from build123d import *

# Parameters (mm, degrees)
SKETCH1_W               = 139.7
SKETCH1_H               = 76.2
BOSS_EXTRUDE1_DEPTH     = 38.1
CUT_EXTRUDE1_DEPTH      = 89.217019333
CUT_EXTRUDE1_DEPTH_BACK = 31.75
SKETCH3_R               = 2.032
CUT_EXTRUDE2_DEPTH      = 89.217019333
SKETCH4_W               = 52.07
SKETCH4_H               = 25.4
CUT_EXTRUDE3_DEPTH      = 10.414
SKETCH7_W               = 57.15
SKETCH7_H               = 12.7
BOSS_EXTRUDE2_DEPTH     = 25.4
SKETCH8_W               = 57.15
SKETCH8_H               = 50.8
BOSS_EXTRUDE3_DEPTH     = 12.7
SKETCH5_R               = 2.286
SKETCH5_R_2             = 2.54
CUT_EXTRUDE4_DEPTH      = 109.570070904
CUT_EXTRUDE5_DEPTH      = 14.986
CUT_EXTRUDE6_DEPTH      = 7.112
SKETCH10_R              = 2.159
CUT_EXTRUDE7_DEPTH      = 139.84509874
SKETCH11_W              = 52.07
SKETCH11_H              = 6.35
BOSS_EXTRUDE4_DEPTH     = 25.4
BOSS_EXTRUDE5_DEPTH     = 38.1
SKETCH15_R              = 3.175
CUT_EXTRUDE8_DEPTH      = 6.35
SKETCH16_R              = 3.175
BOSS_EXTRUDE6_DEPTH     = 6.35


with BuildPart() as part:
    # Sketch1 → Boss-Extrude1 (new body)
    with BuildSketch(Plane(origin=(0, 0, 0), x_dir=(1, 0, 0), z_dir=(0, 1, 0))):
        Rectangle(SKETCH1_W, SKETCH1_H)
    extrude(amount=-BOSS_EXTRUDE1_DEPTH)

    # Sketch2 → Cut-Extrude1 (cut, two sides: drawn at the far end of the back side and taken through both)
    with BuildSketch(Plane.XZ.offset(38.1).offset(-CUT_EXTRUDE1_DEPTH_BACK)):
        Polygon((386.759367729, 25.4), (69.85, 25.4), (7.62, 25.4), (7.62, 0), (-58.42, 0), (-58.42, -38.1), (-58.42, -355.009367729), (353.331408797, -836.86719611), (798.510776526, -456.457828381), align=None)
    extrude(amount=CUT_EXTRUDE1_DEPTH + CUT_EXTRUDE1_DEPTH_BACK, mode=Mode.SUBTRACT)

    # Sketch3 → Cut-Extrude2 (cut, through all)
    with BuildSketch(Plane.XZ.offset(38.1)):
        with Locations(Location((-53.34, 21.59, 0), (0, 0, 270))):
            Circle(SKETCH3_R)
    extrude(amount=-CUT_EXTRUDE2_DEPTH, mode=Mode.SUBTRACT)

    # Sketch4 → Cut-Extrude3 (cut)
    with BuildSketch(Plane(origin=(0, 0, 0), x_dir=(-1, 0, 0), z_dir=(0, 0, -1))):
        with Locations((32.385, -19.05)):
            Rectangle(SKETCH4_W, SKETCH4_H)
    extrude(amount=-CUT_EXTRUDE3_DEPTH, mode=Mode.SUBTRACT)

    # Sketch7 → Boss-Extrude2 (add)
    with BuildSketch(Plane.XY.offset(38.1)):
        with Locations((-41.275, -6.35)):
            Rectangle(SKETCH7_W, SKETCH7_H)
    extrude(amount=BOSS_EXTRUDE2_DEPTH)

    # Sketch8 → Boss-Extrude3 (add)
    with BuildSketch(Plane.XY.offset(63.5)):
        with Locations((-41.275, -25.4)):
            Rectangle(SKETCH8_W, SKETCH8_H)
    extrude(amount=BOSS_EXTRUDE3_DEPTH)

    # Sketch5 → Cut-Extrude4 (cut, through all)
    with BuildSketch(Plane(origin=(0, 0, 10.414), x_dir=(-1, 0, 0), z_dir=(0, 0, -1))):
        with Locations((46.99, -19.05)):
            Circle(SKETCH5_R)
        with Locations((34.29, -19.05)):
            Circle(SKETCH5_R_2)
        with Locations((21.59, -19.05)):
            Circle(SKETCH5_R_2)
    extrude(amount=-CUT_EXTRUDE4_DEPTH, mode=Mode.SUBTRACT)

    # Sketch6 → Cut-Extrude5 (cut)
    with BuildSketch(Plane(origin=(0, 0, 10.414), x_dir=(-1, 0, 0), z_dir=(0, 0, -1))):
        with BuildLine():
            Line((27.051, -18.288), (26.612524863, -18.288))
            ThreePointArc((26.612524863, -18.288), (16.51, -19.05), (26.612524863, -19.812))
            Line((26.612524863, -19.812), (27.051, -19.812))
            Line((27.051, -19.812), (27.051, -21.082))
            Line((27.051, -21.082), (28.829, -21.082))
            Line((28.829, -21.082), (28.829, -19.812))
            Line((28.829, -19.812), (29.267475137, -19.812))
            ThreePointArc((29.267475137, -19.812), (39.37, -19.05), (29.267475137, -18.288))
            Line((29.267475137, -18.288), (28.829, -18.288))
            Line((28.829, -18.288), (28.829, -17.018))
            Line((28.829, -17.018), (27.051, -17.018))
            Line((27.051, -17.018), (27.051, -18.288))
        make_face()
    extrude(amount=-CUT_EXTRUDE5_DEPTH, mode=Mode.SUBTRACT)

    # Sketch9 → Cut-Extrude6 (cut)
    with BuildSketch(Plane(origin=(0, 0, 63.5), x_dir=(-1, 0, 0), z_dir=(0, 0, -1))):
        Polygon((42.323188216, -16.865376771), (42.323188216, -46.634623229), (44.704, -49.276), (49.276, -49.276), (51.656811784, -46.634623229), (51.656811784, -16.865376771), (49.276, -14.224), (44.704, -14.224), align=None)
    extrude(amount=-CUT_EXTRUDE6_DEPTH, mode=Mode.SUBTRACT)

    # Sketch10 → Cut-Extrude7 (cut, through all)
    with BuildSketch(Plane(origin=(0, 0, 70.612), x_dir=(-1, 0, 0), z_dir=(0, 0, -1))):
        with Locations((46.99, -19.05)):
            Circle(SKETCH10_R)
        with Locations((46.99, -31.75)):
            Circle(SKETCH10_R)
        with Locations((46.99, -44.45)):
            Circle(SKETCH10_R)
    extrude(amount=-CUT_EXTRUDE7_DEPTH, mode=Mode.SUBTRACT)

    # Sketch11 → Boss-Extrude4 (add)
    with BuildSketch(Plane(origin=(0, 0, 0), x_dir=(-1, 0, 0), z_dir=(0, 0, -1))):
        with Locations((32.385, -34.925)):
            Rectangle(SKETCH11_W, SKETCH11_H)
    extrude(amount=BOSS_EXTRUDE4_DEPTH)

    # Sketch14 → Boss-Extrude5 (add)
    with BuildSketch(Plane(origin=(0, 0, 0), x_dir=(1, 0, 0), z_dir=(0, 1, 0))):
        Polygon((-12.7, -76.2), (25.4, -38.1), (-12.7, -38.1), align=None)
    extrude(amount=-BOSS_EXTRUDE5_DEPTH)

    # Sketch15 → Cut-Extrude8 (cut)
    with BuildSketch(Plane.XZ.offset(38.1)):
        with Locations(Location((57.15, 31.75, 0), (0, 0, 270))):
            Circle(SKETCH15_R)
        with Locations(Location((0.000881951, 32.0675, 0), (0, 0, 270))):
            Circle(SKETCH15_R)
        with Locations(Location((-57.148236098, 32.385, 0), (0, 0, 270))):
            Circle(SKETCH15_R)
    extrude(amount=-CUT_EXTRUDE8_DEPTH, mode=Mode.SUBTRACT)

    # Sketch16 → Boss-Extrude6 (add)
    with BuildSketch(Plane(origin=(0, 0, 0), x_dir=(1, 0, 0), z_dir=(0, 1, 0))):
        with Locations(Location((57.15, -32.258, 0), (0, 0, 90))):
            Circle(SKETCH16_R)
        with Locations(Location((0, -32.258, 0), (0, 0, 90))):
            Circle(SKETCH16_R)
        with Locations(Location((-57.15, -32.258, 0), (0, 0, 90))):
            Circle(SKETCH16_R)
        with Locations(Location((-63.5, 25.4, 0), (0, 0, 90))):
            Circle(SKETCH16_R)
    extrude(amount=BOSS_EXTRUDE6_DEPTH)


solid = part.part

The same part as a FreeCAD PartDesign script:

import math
import FreeCAD as App
import Part
import Sketcher
from FreeCAD import Vector
Q = App.Units.Quantity


def add_polygon(sketch, points):
    """Adds a closed chain of lines whose ends are joined by coincident constraints."""
    first, n = sketch.GeometryCount, len(points)
    for a, b in zip(points, points[1:] + points[:1]):
        sketch.addGeometry(Part.LineSegment(App.Vector(*a, 0), App.Vector(*b, 0)), False)
    for i in range(n):
        sketch.addConstraint(Sketcher.Constraint("Coincident", first + i, 2, first + (i + 1) % n, 1))

doc = App.newDocument("Part")
body = doc.addObject("PartDesign::Body", "Body")

# Sketch on XZ plane
sketch1 = body.newObject("Sketcher::SketchObject", "Sketch")
sketch1.AttachmentSupport = (doc.getObject("XZ_Plane"), [""])
sketch1.MapMode = "FlatFace"
add_polygon(sketch1, [(-70, -38), (-70, 38), (70, 38), (70, -38)])  # lines 0-3
sketch1.addConstraint(Sketcher.Constraint("Vertical", 0))
sketch1.addConstraint(Sketcher.Constraint("Horizontal", 1))
sketch1.addConstraint(Sketcher.Constraint("Vertical", 2))
sketch1.addConstraint(Sketcher.Constraint("Horizontal", 3))
sketch1.addConstraint(Sketcher.Constraint("Symmetric", 0, 2, 2, 2, -1, 1))
sketch1.addConstraint(Sketcher.Constraint("DistanceY", 0, 1, 0, 2, Q("3 in")))
sketch1.addConstraint(Sketcher.Constraint("DistanceX", 1, 1, 1, 2, Q("5.5 in")))
pad1 = body.newObject("PartDesign::Pad", "Pad")
pad1.Profile = sketch1
pad1.Length = Q("1.5 in")

# Sketch on XZ plane
sketch2 = body.newObject("Sketcher::SketchObject", "Sketch001")
sketch2.AttachmentSupport = (doc.getObject("XZ_Plane"), [""])
sketch2.MapMode = "FlatFace"
sketch2.AttachmentOffset = App.Placement(Vector(0, 0, 1.5 * 25.4), App.Rotation())
add_polygon(sketch2, [(387, 25), (8, 25), (8, 0), (-58, 0), (-58, -355), (353, -837), (799, -456)])  # lines 0-6
sketch2.addConstraint(Sketcher.Constraint("Horizontal", 0))
sketch2.addConstraint(Sketcher.Constraint("Vertical", 1))
sketch2.addConstraint(Sketcher.Constraint("Horizontal", 2))
sketch2.addConstraint(Sketcher.Constraint("Vertical", 3))
sketch2.addConstraint(Sketcher.Constraint("PointOnObject", 1, 2, -1))
sketch2.addConstraint(Sketcher.Constraint("Perpendicular", 4, 5))
sketch2.addConstraint(Sketcher.Constraint("Perpendicular", 5, 6))
sketch2.addConstraint(Sketcher.Constraint("Equal", 4, 6))
sketch2.addConstraint(Sketcher.Constraint("DistanceY", 1, 2, 1, 1, Q("1 in")))
sketch2.addConstraint(Sketcher.Constraint("DistanceX", 2, 2, 2, 1, Q("2.6 in")))
sketch2.addConstraint(Sketcher.Constraint("DistanceX", -1, 1, 0, 2, Q("0.3 in")))
sketch2.addConstraint(Sketcher.Constraint("DistanceX", 0, 2, 0, 1, 379.139368))
sketch2.addConstraint(Sketcher.Constraint("DistanceY", 3, 2, 3, 1, 355.009368))
sketch2.addConstraint(Sketcher.Constraint("DistanceX", -1, 1, 4, 2, 353.331409))
pocket1 = body.newObject("PartDesign::Pocket", "Pocket")
pocket1.Profile = sketch2
pocket1.Type = "TwoLengths"
pocket1.Length = 89.217019
pocket1.Length2 = Q("1.25 in")
pocket1.Reversed = True

# Sketch on XZ plane
sketch3 = body.newObject("Sketcher::SketchObject", "Sketch002")
sketch3.AttachmentSupport = (doc.getObject("XZ_Plane"), [""])
sketch3.MapMode = "FlatFace"
sketch3.AttachmentOffset = App.Placement(Vector(0, 0, 1.5 * 25.4), App.Rotation())
sketch3.addGeometry(Part.Circle(Vector(-53.3, 21.6, 0), Vector(0, 0, 1), 2), False)
sketch3.addConstraint(Sketcher.Constraint("Diameter", 0, Q("0.16 in")))
sketch3.addConstraint(Sketcher.Constraint("DistanceX", 0, 3, -1, 1, Q("2.1 in")))
sketch3.addConstraint(Sketcher.Constraint("DistanceY", -1, 1, 0, 3, Q("0.85 in")))
pocket2 = body.newObject("PartDesign::Pocket", "Pocket001")
pocket2.Profile = sketch3
pocket2.Type = "ThroughAll"

# Sketch on XY plane
sketch4 = body.newObject("Sketcher::SketchObject", "Sketch003")
sketch4.AttachmentSupport = (doc.getObject("XY_Plane"), [""])
sketch4.MapMode = "FlatFace"
add_polygon(sketch4, [(-6, -6), (-6, -32), (-58, -32), (-58, -6)])  # lines 0-3
sketch4.addConstraint(Sketcher.Constraint("Vertical", 0))
sketch4.addConstraint(Sketcher.Constraint("Horizontal", 1))
sketch4.addConstraint(Sketcher.Constraint("Vertical", 2))
sketch4.addConstraint(Sketcher.Constraint("Horizontal", 3))
sketch4.addConstraint(Sketcher.Constraint("DistanceY", 0, 2, 0, 1, Q("1 in")))
sketch4.addConstraint(Sketcher.Constraint("DistanceX", 1, 2, 1, 1, Q("2.05 in")))
sketch4.addConstraint(Sketcher.Constraint("DistanceX", 1, 2, -1, 1, Q("2.3 in")))
sketch4.addConstraint(Sketcher.Constraint("DistanceY", 0, 2, -1, 1, Q("1.25 in")))
pocket3 = body.newObject("PartDesign::Pocket", "Pocket002")
pocket3.Profile = sketch4
pocket3.Length = Q("0.41 in")
pocket3.Reversed = True

# Sketch on XY plane
sketch5 = body.newObject("Sketcher::SketchObject", "Sketch004")
sketch5.AttachmentSupport = (doc.getObject("XY_Plane"), [""])
sketch5.MapMode = "FlatFace"
sketch5.AttachmentOffset = App.Placement(Vector(0, 0, 1.5 * 25.4), App.Rotation())
add_polygon(sketch5, [(-70, 0), (-70, -13), (-13, -13), (-13, 0)])  # lines 0-3
sketch5.addConstraint(Sketcher.Constraint("Vertical", 0))
sketch5.addConstraint(Sketcher.Constraint("Horizontal", 1))
sketch5.addConstraint(Sketcher.Constraint("Vertical", 2))
sketch5.addConstraint(Sketcher.Constraint("Horizontal", 3))
sketch5.addConstraint(Sketcher.Constraint("PointOnObject", 2, 2, -1))
sketch5.addConstraint(Sketcher.Constraint("DistanceY", 0, 2, 0, 1, Q("0.5 in")))
sketch5.addConstraint(Sketcher.Constraint("DistanceX", 1, 1, 1, 2, Q("2.25 in")))
sketch5.addConstraint(Sketcher.Constraint("DistanceX", 1, 2, -1, 1, Q("0.5 in")))
pad2 = body.newObject("PartDesign::Pad", "Pad001")
pad2.Profile = sketch5
pad2.Length = Q("1 in")

# Sketch on XY plane
sketch6 = body.newObject("Sketcher::SketchObject", "Sketch005")
sketch6.AttachmentSupport = (doc.getObject("XY_Plane"), [""])
sketch6.MapMode = "FlatFace"
sketch6.AttachmentOffset = App.Placement(Vector(0, 0, 2.5 * 25.4), App.Rotation())
add_polygon(sketch6, [(-70, 0), (-70, -51), (-13, -51), (-13, 0)])  # lines 0-3
sketch6.addConstraint(Sketcher.Constraint("Vertical", 0))
sketch6.addConstraint(Sketcher.Constraint("Horizontal", 1))
sketch6.addConstraint(Sketcher.Constraint("Vertical", 2))
sketch6.addConstraint(Sketcher.Constraint("Horizontal", 3))
sketch6.addConstraint(Sketcher.Constraint("PointOnObject", 2, 2, -1))
sketch6.addConstraint(Sketcher.Constraint("DistanceY", 0, 2, 0, 1, Q("2 in")))
sketch6.addConstraint(Sketcher.Constraint("DistanceX", 1, 1, 1, 2, Q("2.25 in")))
sketch6.addConstraint(Sketcher.Constraint("DistanceX", 1, 2, -1, 1, Q("0.5 in")))
pad3 = body.newObject("PartDesign::Pad", "Pad002")
pad3.Profile = sketch6
pad3.Length = Q("0.5 in")

# Sketch on XY plane
sketch7 = body.newObject("Sketcher::SketchObject", "Sketch006")
sketch7.AttachmentSupport = (doc.getObject("XY_Plane"), [""])
sketch7.MapMode = "FlatFace"
sketch7.AttachmentOffset = App.Placement(Vector(0, 0, 0.41 * 25.4), App.Rotation())
sketch7.addGeometry(Part.Circle(Vector(-47, -19.1, 0), Vector(0, 0, 1), 2.3), False)
sketch7.addGeometry(Part.Circle(Vector(-34.3, -19.1, 0), Vector(0, 0, 1), 2.5), False)
sketch7.addGeometry(Part.Circle(Vector(-21.6, -19.1, 0), Vector(0, 0, 1), 2.5), False)
sketch7.addConstraint(Sketcher.Constraint("Equal", 1, 2))
sketch7.addConstraint(Sketcher.Constraint("Horizontal", 0, 3, 1, 3))
sketch7.addConstraint(Sketcher.Constraint("Horizontal", 1, 3, 2, 3))
sketch7.addConstraint(Sketcher.Constraint("Diameter", 1, Q("0.2 in")))
sketch7.addConstraint(Sketcher.Constraint("Diameter", 0, Q("0.18 in")))
sketch7.addConstraint(Sketcher.Constraint("DistanceX", 0, 3, 2, 3, Q("1 in")))
sketch7.addConstraint(Sketcher.Constraint("DistanceX", 0, 3, 1, 3, Q("0.5 in")))
sketch7.addConstraint(Sketcher.Constraint("DistanceX", 0, 3, -1, 1, Q("1.85 in")))
sketch7.addConstraint(Sketcher.Constraint("DistanceY", 0, 3, -1, 1, Q("0.75 in")))
pocket4 = body.newObject("PartDesign::Pocket", "Pocket003")
pocket4.Profile = sketch7
pocket4.Type = "ThroughAll"
pocket4.Reversed = True

# Sketch on XY plane
sketch8 = body.newObject("Sketcher::SketchObject", "Sketch007")
sketch8.AttachmentSupport = (doc.getObject("XY_Plane"), [""])
sketch8.MapMode = "FlatFace"
sketch8.AttachmentOffset = App.Placement(Vector(0, 0, 0.41 * 25.4), App.Rotation())
sketch8.addGeometry(Part.LineSegment(Vector(-27.05, -18.29, 0), Vector(-26.61, -18.29, 0)), False)
sketch8.addGeometry(Part.ArcOfCircle(Part.Circle(Vector(-21.59, -19.05, 0), Vector(0, 0, 1), 5.08), math.radians(-171), math.radians(171)), False)
sketch8.addGeometry(Part.LineSegment(Vector(-26.61, -19.81, 0), Vector(-27.05, -19.81, 0)), False)
sketch8.addGeometry(Part.LineSegment(Vector(-27.05, -19.81, 0), Vector(-27.05, -21.08, 0)), False)
sketch8.addGeometry(Part.LineSegment(Vector(-27.05, -21.08, 0), Vector(-28.83, -21.08, 0)), False)
sketch8.addGeometry(Part.LineSegment(Vector(-28.83, -21.08, 0), Vector(-28.83, -19.81, 0)), False)
sketch8.addGeometry(Part.LineSegment(Vector(-28.83, -19.81, 0), Vector(-29.27, -19.81, 0)), False)
sketch8.addGeometry(Part.ArcOfCircle(Part.Circle(Vector(-34.29, -19.05, 0), Vector(0, 0, 1), 5.08), math.radians(9), math.radians(351)), False)
sketch8.addGeometry(Part.LineSegment(Vector(-29.27, -18.29, 0), Vector(-28.83, -18.29, 0)), False)
sketch8.addGeometry(Part.LineSegment(Vector(-28.83, -18.29, 0), Vector(-28.83, -17.02, 0)), False)
sketch8.addGeometry(Part.LineSegment(Vector(-28.83, -17.02, 0), Vector(-27.05, -17.02, 0)), False)
sketch8.addGeometry(Part.LineSegment(Vector(-27.05, -17.02, 0), Vector(-27.05, -18.29, 0)), False)
sketch8.addConstraint(Sketcher.Constraint("Coincident", 0, 2, 1, 2))
sketch8.addConstraint(Sketcher.Constraint("Coincident", 1, 1, 2, 1))
sketch8.addConstraint(Sketcher.Constraint("Coincident", 2, 2, 3, 1))
sketch8.addConstraint(Sketcher.Constraint("Coincident", 3, 2, 4, 1))
sketch8.addConstraint(Sketcher.Constraint("Coincident", 4, 2, 5, 1))
sketch8.addConstraint(Sketcher.Constraint("Coincident", 5, 2, 6, 1))
sketch8.addConstraint(Sketcher.Constraint("Coincident", 6, 2, 7, 2))
sketch8.addConstraint(Sketcher.Constraint("Coincident", 7, 1, 8, 1))
sketch8.addConstraint(Sketcher.Constraint("Coincident", 8, 2, 9, 1))
sketch8.addConstraint(Sketcher.Constraint("Coincident", 9, 2, 10, 1))
sketch8.addConstraint(Sketcher.Constraint("Coincident", 10, 2, 11, 1))
sketch8.addConstraint(Sketcher.Constraint("Coincident", 11, 2, 0, 1))
sketch8.addConstraint(Sketcher.Constraint("Horizontal", 0))
sketch8.addConstraint(Sketcher.Constraint("Horizontal", 2))
sketch8.addConstraint(Sketcher.Constraint("Vertical", 3))
sketch8.addConstraint(Sketcher.Constraint("Horizontal", 4))
sketch8.addConstraint(Sketcher.Constraint("Vertical", 5))
sketch8.addConstraint(Sketcher.Constraint("Horizontal", 6))
sketch8.addConstraint(Sketcher.Constraint("Horizontal", 8))
sketch8.addConstraint(Sketcher.Constraint("Vertical", 9))
sketch8.addConstraint(Sketcher.Constraint("Horizontal", 10))
sketch8.addConstraint(Sketcher.Constraint("Vertical", 11))
sketch8.addConstraint(Sketcher.Constraint("Equal", 1, 7))
sketch8.addConstraint(Sketcher.Constraint("Horizontal", 1, 3, 7, 3))
sketch8.addConstraint(Sketcher.Constraint("Horizontal", 2, 2, 5, 2))
sketch8.addConstraint(Sketcher.Constraint("Horizontal", 0, 2, 7, 1))
sketch8.addConstraint(Sketcher.Constraint("Vertical", 0, 2, 1, 1))
sketch8.addConstraint(Sketcher.Constraint("Vertical", 5, 2, 8, 2))
sketch8.addConstraint(Sketcher.Constraint("Vertical", 3, 2, 10, 2))
sketch8.addConstraint(Sketcher.Constraint("Equal", 2, 6))
sketch8.addConstraint(Sketcher.Constraint("Equal", 5, 9))
sketch8.addConstraint(Sketcher.Constraint("Radius", 1, Q("0.2 in")))
sketch8.addConstraint(Sketcher.Constraint("DistanceX", 4, 2, 4, 1, Q("0.07 in")))
sketch8.addConstraint(Sketcher.Constraint("DistanceY", 3, 2, 3, 1, Q("0.05 in")))
sketch8.addConstraint(Sketcher.Constraint("DistanceX", 7, 3, 1, 3, Q("0.5 in")))
sketch8.addConstraint(Sketcher.Constraint("DistanceX", 1, 3, -1, 1, Q("0.85 in")))
sketch8.addConstraint(Sketcher.Constraint("DistanceY", 1, 3, -1, 1, Q("0.75 in")))
sketch8.addConstraint(Sketcher.Constraint("DistanceY", 0, 2, -1, 1, Q("0.72 in")))
pocket5 = body.newObject("PartDesign::Pocket", "Pocket004")
pocket5.Profile = sketch8
pocket5.Length = Q("0.59 in")
pocket5.Reversed = True

# Sketch on XY plane
sketch9 = body.newObject("Sketcher::SketchObject", "Sketch008")
sketch9.AttachmentSupport = (doc.getObject("XY_Plane"), [""])
sketch9.MapMode = "FlatFace"
sketch9.AttachmentOffset = App.Placement(Vector(0, 0, 2.5 * 25.4), App.Rotation())
add_polygon(sketch9, [(-42.3, -16.9), (-42.3, -46.6), (-44.7, -49.3), (-49.3, -49.3), (-51.7, -46.6), (-51.7, -16.9), (-49.3, -14.2), (-44.7, -14.2)])  # lines 0-7
sketch9.addConstraint(Sketcher.Constraint("Vertical", 0))
sketch9.addConstraint(Sketcher.Constraint("Horizontal", 2))
sketch9.addConstraint(Sketcher.Constraint("Vertical", 4))
sketch9.addConstraint(Sketcher.Constraint("Horizontal", 6))
sketch9.addConstraint(Sketcher.Constraint("Parallel", 1, 5))
sketch9.addConstraint(Sketcher.Constraint("Parallel", 3, 7))
sketch9.addConstraint(Sketcher.Constraint("Horizontal", 0, 2, 3, 2))
sketch9.addConstraint(Sketcher.Constraint("Horizontal", 4, 2, 7, 2))
sketch9.addConstraint(Sketcher.Constraint("Vertical", 2, 2, 5, 2))
sketch9.addConstraint(Sketcher.Constraint("Vertical", 1, 2, 6, 2))
sketch9.addConstraint(Sketcher.Constraint("DistanceX", 2, 2, 2, 1, Q("0.18 in")))
sketch9.addConstraint(Sketcher.Constraint("Distance", 1, Q("0.14 in")))
sketch9.addConstraint(Sketcher.Constraint("DistanceX", 1, 2, -1, 1, Q("1.76 in")))
sketch9.addConstraint(Sketcher.Constraint("DistanceY", 1, 2, -1, 1, Q("1.94 in")))
sketch9.addConstraint(Sketcher.Constraint("DistanceY", 5, 2, -1, 1, Q("0.56 in")))
sketch9.addConstraint(Sketcher.Constraint("Angle", 1, Q("-132.03 deg")))
pocket6 = body.newObject("PartDesign::Pocket", "Pocket005")
pocket6.Profile = sketch9
pocket6.Length = Q("0.28 in")
pocket6.Reversed = True

# Sketch on XY plane
sketch10 = body.newObject("Sketcher::SketchObject", "Sketch009")
sketch10.AttachmentSupport = (doc.getObject("XY_Plane"), [""])
sketch10.MapMode = "FlatFace"
sketch10.AttachmentOffset = App.Placement(Vector(0, 0, 2.78 * 25.4), App.Rotation())
sketch10.addGeometry(Part.Circle(Vector(-47, -19.1, 0), Vector(0, 0, 1), 2.2), False)
sketch10.addGeometry(Part.Circle(Vector(-47, -31.8, 0), Vector(0, 0, 1), 2.2), False)
sketch10.addGeometry(Part.Circle(Vector(-47, -44.5, 0), Vector(0, 0, 1), 2.2), False)
sketch10.addConstraint(Sketcher.Constraint("Equal", 0, 1))
sketch10.addConstraint(Sketcher.Constraint("Equal", 1, 2))
sketch10.addConstraint(Sketcher.Constraint("Vertical", 0, 3, 1, 3))
sketch10.addConstraint(Sketcher.Constraint("Vertical", 1, 3, 2, 3))
sketch10.addConstraint(Sketcher.Constraint("Diameter", 0, Q("0.17 in")))
sketch10.addConstraint(Sketcher.Constraint("DistanceY", 2, 3, 0, 3, Q("1 in")))
sketch10.addConstraint(Sketcher.Constraint("DistanceY", 1, 3, 0, 3, Q("0.5 in")))
sketch10.addConstraint(Sketcher.Constraint("DistanceX", 0, 3, -1, 1, Q("1.85 in")))
sketch10.addConstraint(Sketcher.Constraint("DistanceY", 0, 3, -1, 1, Q("0.75 in")))
pocket7 = body.newObject("PartDesign::Pocket", "Pocket006")
pocket7.Profile = sketch10
pocket7.Type = "ThroughAll"
pocket7.Reversed = True

# Sketch on XY plane
sketch11 = body.newObject("Sketcher::SketchObject", "Sketch010")
sketch11.AttachmentSupport = (doc.getObject("XY_Plane"), [""])
sketch11.MapMode = "FlatFace"
add_polygon(sketch11, [(-6, -32), (-6, -38), (-58, -38), (-58, -32)])  # lines 0-3
sketch11.addConstraint(Sketcher.Constraint("Vertical", 0))
sketch11.addConstraint(Sketcher.Constraint("Horizontal", 1))
sketch11.addConstraint(Sketcher.Constraint("Vertical", 2))
sketch11.addConstraint(Sketcher.Constraint("Horizontal", 3))
sketch11.addConstraint(Sketcher.Constraint("DistanceX", 1, 2, 1, 1, Q("2.05 in")))
sketch11.addConstraint(Sketcher.Constraint("DistanceY", 0, 2, 0, 1, Q("0.25 in")))
sketch11.addConstraint(Sketcher.Constraint("DistanceY", 0, 2, -1, 1, Q("1.5 in")))
sketch11.addConstraint(Sketcher.Constraint("DistanceX", 1, 2, -1, 1, Q("2.3 in")))
pad4 = body.newObject("PartDesign::Pad", "Pad003")
pad4.Profile = sketch11
pad4.Length = Q("1 in")
pad4.Reversed = True

# Sketch on XZ plane
sketch12 = body.newObject("Sketcher::SketchObject", "Sketch011")
sketch12.AttachmentSupport = (doc.getObject("XZ_Plane"), [""])
sketch12.MapMode = "FlatFace"
add_polygon(sketch12, [(-13, 76), (25, 38), (-13, 38)])  # lines 0-2
sketch12.addConstraint(Sketcher.Constraint("Horizontal", 1))
sketch12.addConstraint(Sketcher.Constraint("Vertical", 2))
sketch12.addConstraint(Sketcher.Constraint("Equal", 1, 2))
sketch12.addConstraint(Sketcher.Constraint("DistanceX", 1, 2, 1, 1, Q("1.5 in")))
sketch12.addConstraint(Sketcher.Constraint("DistanceX", -1, 1, 0, 2, Q("1 in")))
sketch12.addConstraint(Sketcher.Constraint("DistanceY", -1, 1, 2, 2, Q("3 in")))
pad5 = body.newObject("PartDesign::Pad", "Pad004")
pad5.Profile = sketch12
pad5.Length = Q("1.5 in")

# Sketch on XZ plane
sketch13 = body.newObject("Sketcher::SketchObject", "Sketch012")
sketch13.AttachmentSupport = (doc.getObject("XZ_Plane"), [""])
sketch13.MapMode = "FlatFace"
sketch13.AttachmentOffset = App.Placement(Vector(0, 0, 1.5 * 25.4), App.Rotation())
sketch13.addGeometry(Part.Circle(Vector(57.1, 31.8, 0), Vector(0, 0, 1), 3.2), False)
sketch13.addGeometry(Part.Circle(Vector(0, 32.1, 0), Vector(0, 0, 1), 3.2), False)
sketch13.addGeometry(Part.Circle(Vector(-57.1, 32.4, 0), Vector(0, 0, 1), 3.2), False)
sketch13.addConstraint(Sketcher.Constraint("Equal", 0, 1))
sketch13.addConstraint(Sketcher.Constraint("Equal", 1, 2))
sketch13.addConstraint(Sketcher.Constraint("Diameter", 0, Q("0.25 in")))
sketch13.addConstraint(Sketcher.Constraint("DistanceX", -1, 1, 0, 3, Q("2.25 in")))
sketch13.addConstraint(Sketcher.Constraint("DistanceY", -1, 1, 0, 3, Q("1.25 in")))
sketch13.addConstraint(Sketcher.Constraint("DistanceY", -1, 1, 2, 3, Q("1.275 in")))
sketch13.addConstraint(Sketcher.Constraint("DistanceY", -1, 1, 1, 3, Q("1.2625 in")))
sketch13.addConstraint(Sketcher.Constraint("DistanceX", -1, 1, 1, 3, 0.000882))
sketch13.addConstraint(Sketcher.Constraint("DistanceX", 2, 3, 1, 3, 57.149118))
pocket8 = body.newObject("PartDesign::Pocket", "Pocket007")
pocket8.Profile = sketch13
pocket8.Length = Q("0.25 in")

# Sketch on XZ plane
sketch14 = body.newObject("Sketcher::SketchObject", "Sketch013")
sketch14.AttachmentSupport = (doc.getObject("XZ_Plane"), [""])
sketch14.MapMode = "FlatFace"
sketch14.addGeometry(Part.Circle(Vector(57.1, 32.3, 0), Vector(0, 0, 1), 3.2), False)
sketch14.addGeometry(Part.Circle(Vector(0, 32.3, 0), Vector(0, 0, 1), 3.2), False)
sketch14.addGeometry(Part.Circle(Vector(-57.1, 32.3, 0), Vector(0, 0, 1), 3.2), False)
sketch14.addGeometry(Part.Circle(Vector(-63.5, -25.4, 0), Vector(0, 0, 1), 3.2), False)
sketch14.addConstraint(Sketcher.Constraint("Equal", 0, 1))
sketch14.addConstraint(Sketcher.Constraint("Equal", 1, 2))
sketch14.addConstraint(Sketcher.Constraint("Equal", 2, 3))
sketch14.addConstraint(Sketcher.Constraint("Symmetric", 0, 3, 2, 3, -2))
sketch14.addConstraint(Sketcher.Constraint("PointOnObject", 1, 3, -2))
sketch14.addConstraint(Sketcher.Constraint("Horizontal", 0, 3, 1, 3))
sketch14.addConstraint(Sketcher.Constraint("Diameter", 0, Q("0.25 in")))
sketch14.addConstraint(Sketcher.Constraint("DistanceY", 3, 3, -1, 1, Q("1 in")))
sketch14.addConstraint(Sketcher.Constraint("DistanceX", 3, 3, -1, 1, Q("2.5 in")))
sketch14.addConstraint(Sketcher.Constraint("DistanceX", 2, 3, 0, 3, Q("4.5 in")))
sketch14.addConstraint(Sketcher.Constraint("DistanceY", -1, 1, 0, 3, Q("1.27 in")))
pad6 = body.newObject("PartDesign::Pad", "Pad005")
pad6.Profile = sketch14
pad6.Length = Q("0.25 in")
pad6.Reversed = True

doc.recompute()
